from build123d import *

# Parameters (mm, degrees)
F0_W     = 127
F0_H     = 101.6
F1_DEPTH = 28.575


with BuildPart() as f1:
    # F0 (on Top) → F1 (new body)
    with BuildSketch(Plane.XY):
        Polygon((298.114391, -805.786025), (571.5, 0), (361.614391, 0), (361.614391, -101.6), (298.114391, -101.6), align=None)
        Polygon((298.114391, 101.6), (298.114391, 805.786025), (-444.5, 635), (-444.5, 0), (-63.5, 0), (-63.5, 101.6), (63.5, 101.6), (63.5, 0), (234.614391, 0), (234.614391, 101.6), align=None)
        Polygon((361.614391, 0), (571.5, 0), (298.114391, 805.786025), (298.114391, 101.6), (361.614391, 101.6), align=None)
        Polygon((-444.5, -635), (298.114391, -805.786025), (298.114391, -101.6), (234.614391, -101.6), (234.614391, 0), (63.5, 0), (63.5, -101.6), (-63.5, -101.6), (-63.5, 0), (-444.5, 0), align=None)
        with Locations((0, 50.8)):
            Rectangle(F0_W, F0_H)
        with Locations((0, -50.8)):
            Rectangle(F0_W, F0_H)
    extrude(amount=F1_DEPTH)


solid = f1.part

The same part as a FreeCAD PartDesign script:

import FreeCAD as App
import Part
import Sketcher
from FreeCAD import Vector
Q = App.Units.Quantity


def add_polygon(sketch, points):
    """Adds a closed chain of lines whose ends are joined by coincident constraints."""
    first, n = sketch.GeometryCount, len(points)
    for a, b in zip(points, points[1:] + points[:1]):
        sketch.addGeometry(Part.LineSegment(App.Vector(*a, 0), App.Vector(*b, 0)), False)
    for i in range(n):
        sketch.addConstraint(Sketcher.Constraint("Coincident", first + i, 2, first + (i + 1) % n, 1))

doc = App.newDocument("Part")
body = doc.addObject("PartDesign::Body", "Body")

# Sketch on XY plane
sketch1 = doc.addObject("Sketcher::SketchObject", "Sketch")
body.addObject(sketch1)
sketch1.AttachmentSupport = (doc.XY_Plane, [""])
sketch1.MapMode = "FlatFace"
add_polygon(sketch1, [(298, -806), (572, 0), (298, 806), (-444, 635), (-444, -635)])  # lines 0-4
add_polygon(sketch1, [(235, 102), (362, 102), (362, -102), (235, -102)])  # lines 5-8
sketch1.addConstraint([
    Sketcher.Constraint("Vertical", 3),
    Sketcher.Constraint("Horizontal", 5),
    Sketcher.Constraint("Vertical", 6),
    Sketcher.Constraint("Horizontal", 7),
    Sketcher.Constraint("Vertical", 8),
    Sketcher.Constraint("Symmetric", 1, 2, 4, 2, -1),
    Sketcher.Constraint("PointOnObject", 0, 2, -1),
    Sketcher.Constraint("Equal", 2, 4),
    Sketcher.Constraint("DistanceX", 5, 1, 5, 2, Q("5 in")),
    Sketcher.Constraint("DistanceY", 3, 2, 3, 1, Q("50 in")),
    Sketcher.Constraint("DistanceY", 6, 2, 6, 1, Q("8 in")),
    Sketcher.Constraint("Distance", 2, Q("30 in")),
    Sketcher.Constraint("DistanceY", -1, 1, 5, 2, Q("4 in")),
    Sketcher.Constraint("DistanceX", 2, 2, 0, 2, Q("40 in")),
    Sketcher.Constraint("Distance", 0, Q("33.5 in")),
    Sketcher.Constraint("DistanceX", -1, 1, 0, 2, Q("22.5 in")),
    Sketcher.Constraint("DistanceX", 1, 2, 5, 2, Q("2.5 in")),
])
pad1 = doc.addObject("PartDesign::Pad", "Pad")
body.addObject(pad1)
pad1.Profile = sketch1
pad1.Length = Q("1.125 in")

doc.recompute()
